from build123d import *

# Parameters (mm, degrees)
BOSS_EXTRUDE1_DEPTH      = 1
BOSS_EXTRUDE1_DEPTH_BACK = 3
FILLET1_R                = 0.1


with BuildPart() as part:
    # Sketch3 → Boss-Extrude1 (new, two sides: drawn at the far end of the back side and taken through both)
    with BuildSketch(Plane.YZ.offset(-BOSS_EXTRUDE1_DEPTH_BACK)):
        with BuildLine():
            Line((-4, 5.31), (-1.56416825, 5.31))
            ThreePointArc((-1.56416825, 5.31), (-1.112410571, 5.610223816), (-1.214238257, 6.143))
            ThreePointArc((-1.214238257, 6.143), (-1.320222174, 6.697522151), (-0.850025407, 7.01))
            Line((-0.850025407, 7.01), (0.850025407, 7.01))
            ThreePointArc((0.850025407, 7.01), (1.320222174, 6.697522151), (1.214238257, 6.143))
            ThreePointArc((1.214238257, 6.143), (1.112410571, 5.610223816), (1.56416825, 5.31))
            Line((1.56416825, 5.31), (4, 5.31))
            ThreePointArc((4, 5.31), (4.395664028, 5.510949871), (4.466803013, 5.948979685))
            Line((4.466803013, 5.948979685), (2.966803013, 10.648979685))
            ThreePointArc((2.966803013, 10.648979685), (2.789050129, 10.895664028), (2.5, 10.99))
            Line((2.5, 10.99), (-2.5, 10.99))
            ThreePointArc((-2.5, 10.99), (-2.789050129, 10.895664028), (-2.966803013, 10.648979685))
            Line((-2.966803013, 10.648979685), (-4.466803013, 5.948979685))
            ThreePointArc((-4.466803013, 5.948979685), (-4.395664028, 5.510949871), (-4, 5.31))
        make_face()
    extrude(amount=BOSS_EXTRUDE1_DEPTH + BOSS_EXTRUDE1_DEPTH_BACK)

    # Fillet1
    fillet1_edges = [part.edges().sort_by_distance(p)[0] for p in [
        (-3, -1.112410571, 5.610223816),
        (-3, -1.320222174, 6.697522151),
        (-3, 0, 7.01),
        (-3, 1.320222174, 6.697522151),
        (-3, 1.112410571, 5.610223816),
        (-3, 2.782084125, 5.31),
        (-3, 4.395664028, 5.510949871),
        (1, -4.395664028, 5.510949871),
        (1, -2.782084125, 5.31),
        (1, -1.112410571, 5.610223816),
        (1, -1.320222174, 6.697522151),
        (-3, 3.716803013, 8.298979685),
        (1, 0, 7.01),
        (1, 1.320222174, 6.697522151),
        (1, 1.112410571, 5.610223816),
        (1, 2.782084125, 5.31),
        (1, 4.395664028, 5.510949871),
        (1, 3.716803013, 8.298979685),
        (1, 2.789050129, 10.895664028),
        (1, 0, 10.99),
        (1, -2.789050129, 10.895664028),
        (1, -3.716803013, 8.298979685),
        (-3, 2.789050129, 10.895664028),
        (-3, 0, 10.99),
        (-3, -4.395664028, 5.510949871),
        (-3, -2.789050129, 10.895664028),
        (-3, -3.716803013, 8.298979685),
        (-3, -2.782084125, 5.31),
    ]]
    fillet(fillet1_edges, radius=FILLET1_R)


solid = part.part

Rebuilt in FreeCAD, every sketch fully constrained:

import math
import FreeCAD as App
import Part
import Sketcher


def edges_at(feature, points):
    """Names of the edges that pass closest to the given points."""
    edges = feature.Shape.Edges
    near = lambda p: min(range(len(edges)), key=lambda i: edges[i].distToShape(Part.Vertex(*p))[0])
    return sorted({f"Edge{near(p) + 1}" for p in points})

doc = App.newDocument("Part")
params = doc.addObject("Spreadsheet::Sheet", "Params")
for row, (alias, value) in enumerate([
    ("sketch1_width", "5 mm"),
    ("sketch1_radius", "0.49 mm"),
    ("sketch1_radius2", "0.51 mm"),
    ("pad1_length", "1 mm"),
    ("pad1_length2", "3 mm"),
    ("fillet_radius", "0.1 mm"),
], start=1):
    params.set(f"A{row}", alias)
    params.set(f"B{row}", "=" + value)
    params.setAlias(f"B{row}", alias)

body = doc.addObject("PartDesign::Body", "Body")

# Sketch on YZ plane
sketch1 = body.newObject("Sketcher::SketchObject", "Sketch")
sketch1.AttachmentSupport = (doc.getObject("YZ_Plane"), [""])
sketch1.MapMode = "FlatFace"
sketch1.addGeometry([
    Part.LineSegment(App.Vector(-4, 5.31, 0), App.Vector(-1.56, 5.31, 0)),  # 0
    Part.ArcOfCircle(Part.Circle(App.Vector(-1.56, 5.8, 0), App.Vector(0, 0, 1), 0.49), math.radians(-90), math.radians(44)),  # 1
    Part.ArcOfCircle(Part.Circle(App.Vector(-0.85, 6.5, 0), App.Vector(0, 0, 1), 0.51), math.radians(90), math.radians(224)),  # 2
    Part.LineSegment(App.Vector(-0.85, 7.01, 0), App.Vector(0.85, 7.01, 0)),  # 3
    Part.ArcOfCircle(Part.Circle(App.Vector(0.85, 6.5, 0), App.Vector(0, 0, 1), 0.51), math.radians(-44), math.radians(90)),  # 4
    Part.ArcOfCircle(Part.Circle(App.Vector(1.56, 5.8, 0), App.Vector(0, 0, 1), 0.49), math.radians(136), math.radians(270)),  # 5
    Part.LineSegment(App.Vector(1.56, 5.31, 0), App.Vector(4, 5.31, 0)),  # 6
    Part.ArcOfCircle(Part.Circle(App.Vector(4, 5.8, 0), App.Vector(0, 0, 1), 0.49), math.radians(-90), math.radians(18)),  # 7
    Part.LineSegment(App.Vector(4.47, 5.95, 0), App.Vector(2.97, 10.65, 0)),  # 8
    Part.ArcOfCircle(Part.Circle(App.Vector(2.5, 10.5, 0), App.Vector(0, 0, 1), 0.49), math.radians(18), math.radians(90)),  # 9
    Part.LineSegment(App.Vector(2.5, 10.99, 0), App.Vector(-2.5, 10.99, 0)),  # 10
    Part.ArcOfCircle(Part.Circle(App.Vector(-2.5, 10.5, 0), App.Vector(0, 0, 1), 0.49), math.radians(90), math.radians(162)),  # 11
    Part.LineSegment(App.Vector(-2.97, 10.65, 0), App.Vector(-4.47, 5.95, 0)),  # 12
    Part.ArcOfCircle(Part.Circle(App.Vector(-4, 5.8, 0), App.Vector(0, 0, 1), 0.49), math.radians(162), math.radians(270)),  # 13
], False)
sketch1.addConstraint([
    Sketcher.Constraint("Tangent", 0, 2, 1, 1),
    Sketcher.Constraint("Tangent", 1, 2, 2, 2),
    Sketcher.Constraint("Tangent", 2, 1, 3, 1),
    Sketcher.Constraint("Tangent", 3, 2, 4, 2),
    Sketcher.Constraint("Tangent", 4, 1, 5, 1),
    Sketcher.Constraint("Tangent", 5, 2, 6, 1),
    Sketcher.Constraint("Tangent", 6, 2, 7, 1),
    Sketcher.Constraint("Tangent", 7, 2, 8, 1),
    Sketcher.Constraint("Tangent", 8, 2, 9, 1),
    Sketcher.Constraint("Tangent", 9, 2, 10, 1),
    Sketcher.Constraint("Tangent", 10, 2, 11, 1),
    Sketcher.Constraint("Tangent", 11, 2, 12, 1),
    Sketcher.Constraint("Tangent", 12, 2, 13, 1),
    Sketcher.Constraint("Tangent", 13, 2, 0, 1),
    Sketcher.Constraint("Horizontal", 0),
    Sketcher.Constraint("Horizontal", 3),
    Sketcher.Constraint("Horizontal", 6),
    Sketcher.Constraint("Horizontal", 10),
    Sketcher.Constraint("Equal", 2, 4),
    Sketcher.Constraint("Equal", 1, 5),
    Sketcher.Constraint("Equal", 5, 7),
    Sketcher.Constraint("Equal", 7, 9),
    Sketcher.Constraint("Equal", 9, 11),
    Sketcher.Constraint("Equal", 11, 13),
    Sketcher.Constraint("Symmetric", 1, 3, 5, 3, -2),
    Sketcher.Constraint("Symmetric", 8, 2, 11, 2, -2),
    Sketcher.Constraint("DistanceX", 10, 2, 10, 1, 5.0),
    Sketcher.Constraint("Radius", 1, 0.49),
    Sketcher.Constraint("Radius", 2, 0.51),
    Sketcher.Constraint("DistanceX", -1, 1, 7, 3, 4.0),
    Sketcher.Constraint("DistanceY", 4, 3, 9, 3, 4.0),
    Sketcher.Constraint("DistanceY", -1, 1, 1, 3, 5.8),
    Sketcher.Constraint("DistanceY", -1, 1, 2, 3, 6.5),
    Sketcher.Constraint("DistanceX", 0, 1, 0, 2, 2.435832),
])
sketch1.setExpression("Constraints[26]", "Params.sketch1_width")
sketch1.setExpression("Constraints[27]", "Params.sketch1_radius")
sketch1.setExpression("Constraints[28]", "Params.sketch1_radius2")
pad1 = body.newObject("PartDesign::Pad", "Pad")
pad1.Profile = sketch1
pad1.Type = "TwoLengths"
pad1.setExpression("Length", "Params.pad1_length")
pad1.setExpression("Length2", "Params.pad1_length2")
doc.recompute()

fillet = body.newObject("PartDesign::Fillet", "Fillet")
fillet.Base = (pad1, edges_at(pad1, [
    (-3, -1.112, 5.61),
    (-3, -1.32, 6.698),
    (-3, 0, 7.01),
    (-3, 1.32, 6.698),
    (-3, 1.112, 5.61),
    (-3, 2.782, 5.31),
    (-3, 4.396, 5.511),
    (1, -4.396, 5.511),
    (1, -2.782, 5.31),
    (1, -1.112, 5.61),
    (1, -1.32, 6.698),
    (-3, 3.717, 8.299),
    (1, 0, 7.01),
    (1, 1.32, 6.698),
    (1, 1.112, 5.61),
    (1, 2.782, 5.31),
    (1, 4.396, 5.511),
    (1, 3.717, 8.299),
    (1, 2.789, 10.896),
    (1, 0, 10.99),
    (1, -2.789, 10.896),
    (1, -3.717, 8.299),
    (-3, 2.789, 10.896),
    (-3, 0, 10.99),
    (-3, -4.396, 5.511),
    (-3, -2.789, 10.896),
    (-3, -3.717, 8.299),
    (-3, -2.782, 5.31),
]))
fillet.setExpression("Radius", "Params.fillet_radius")

doc.recompute()
